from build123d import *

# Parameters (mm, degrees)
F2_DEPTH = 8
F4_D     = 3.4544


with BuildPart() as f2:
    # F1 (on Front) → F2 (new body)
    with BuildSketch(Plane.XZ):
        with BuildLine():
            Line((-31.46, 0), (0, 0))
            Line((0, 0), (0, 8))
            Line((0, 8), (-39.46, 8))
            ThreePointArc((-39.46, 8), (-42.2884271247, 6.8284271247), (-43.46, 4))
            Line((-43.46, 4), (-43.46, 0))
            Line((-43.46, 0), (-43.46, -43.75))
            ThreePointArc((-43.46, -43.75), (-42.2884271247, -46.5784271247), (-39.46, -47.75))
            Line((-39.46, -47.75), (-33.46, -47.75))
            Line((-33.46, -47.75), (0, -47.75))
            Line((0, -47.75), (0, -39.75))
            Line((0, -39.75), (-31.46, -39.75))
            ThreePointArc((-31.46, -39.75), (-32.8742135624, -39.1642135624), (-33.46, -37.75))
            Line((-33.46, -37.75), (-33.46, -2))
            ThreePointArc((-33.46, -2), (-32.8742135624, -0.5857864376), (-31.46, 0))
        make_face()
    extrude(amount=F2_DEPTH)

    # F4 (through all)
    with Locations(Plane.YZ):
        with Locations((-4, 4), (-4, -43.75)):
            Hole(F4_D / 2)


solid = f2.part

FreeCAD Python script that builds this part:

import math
import FreeCAD as App
import Part
import Sketcher

V = App.Vector
Q = App.Units.Quantity

doc = App.newDocument("Part")
body = doc.addObject("PartDesign::Body", "Body")

sketch1 = body.newObject("Sketcher::SketchObject", "Sketch")
sketch1.AttachmentSupport = (doc.getObject("XZ_Plane"), [""])
sketch1.MapMode = "FlatFace"
sketch1.addGeometry([
    Part.LineSegment(V(-31.46, 0, 0), V(0, 0, 0)),
    Part.LineSegment(V(0, 0, 0), V(0, 8, 0)),
    Part.LineSegment(V(0, 8, 0), V(-39.46, 8, 0)),
    Part.ArcOfCircle(Part.Circle(V(-39.46, 4, 0), V(0, 0, 1), 4), math.radians(90), math.radians(180)),
    Part.LineSegment(V(-43.46, 4, 0), V(-43.46, -43.75, 0)),
    Part.ArcOfCircle(Part.Circle(V(-39.46, -43.75, 0), V(0, 0, 1), 4), math.radians(180), math.radians(270)),
    Part.LineSegment(V(-39.46, -47.75, 0), V(0, -47.75, 0)),
    Part.LineSegment(V(0, -47.75, 0), V(0, -39.75, 0)),
    Part.LineSegment(V(0, -39.75, 0), V(-31.46, -39.75, 0)),
    Part.ArcOfCircle(Part.Circle(V(-31.46, -37.75, 0), V(0, 0, 1), 2), math.radians(180), math.radians(270)),
    Part.LineSegment(V(-33.46, -37.75, 0), V(-33.46, -2, 0)),
    Part.ArcOfCircle(Part.Circle(V(-31.46, -2, 0), V(0, 0, 1), 2), math.radians(90), math.radians(180)),
], False)
sketch1.addConstraint([
    Sketcher.Constraint("Coincident", 0, 2, 1, 1),
    Sketcher.Constraint("Coincident", 1, 2, 2, 1),
    Sketcher.Constraint("Tangent", 2, 2, 3, 1),
    Sketcher.Constraint("Tangent", 3, 2, 4, 1),
    Sketcher.Constraint("Tangent", 4, 2, 5, 1),
    Sketcher.Constraint("Tangent", 5, 2, 6, 1),
    Sketcher.Constraint("Coincident", 6, 2, 7, 1),
    Sketcher.Constraint("Coincident", 7, 2, 8, 1),
    Sketcher.Constraint("Tangent", 8, 2, 9, 2),
    Sketcher.Constraint("Tangent", 9, 1, 10, 1),
    Sketcher.Constraint("Tangent", 10, 2, 11, 2),
    Sketcher.Constraint("Tangent", 11, 1, 0, 1),
    Sketcher.Constraint("Horizontal", 0),
    Sketcher.Constraint("Vertical", 1),
    Sketcher.Constraint("Horizontal", 2),
    Sketcher.Constraint("Vertical", 4),
    Sketcher.Constraint("Horizontal", 6),
    Sketcher.Constraint("Vertical", 7),
    Sketcher.Constraint("Horizontal", 8),
    Sketcher.Constraint("Vertical", 10),
    Sketcher.Constraint("Coincident", 0, 2, -1, 1),
    Sketcher.Constraint("Equal", 3, 5),
    Sketcher.Constraint("Equal", 9, 11),
    Sketcher.Constraint("PointOnObject", 6, 2, -2),
    Sketcher.Constraint("Equal", 1, 7),
    Sketcher.Constraint("Radius", 3, Q("4 mm")),
    Sketcher.Constraint("Radius", 9, Q("2 mm")),
    Sketcher.Constraint("DistanceY", 1, 1, 1, 2, Q("8 mm")),
    Sketcher.Constraint("DistanceX", 5, 3, 9, 3, Q("8 mm")),
    Sketcher.Constraint("DistanceX", 0, 1, 0, 2, Q("31.46 mm")),
    Sketcher.Constraint("DistanceY", 4, 2, 4, 1, Q("47.75 mm")),
])
pad1 = body.newObject("PartDesign::Pad", "Pad")
pad1.Profile = sketch1
pad1.Length = 8

sketch2 = body.newObject("Sketcher::SketchObject", "Sketch001")
sketch2.AttachmentSupport = (doc.getObject("YZ_Plane"), [""])
sketch2.MapMode = "FlatFace"
sketch2.addGeometry([
    Part.Circle(V(-4, 4, 0), V(0, 0, 1), 1.7272),
    Part.Circle(V(-4, -43.75, 0), V(0, 0, 1), 1.7272),
], False)
sketch2.addConstraint([
    Sketcher.Constraint("Equal", 0, 1),
    Sketcher.Constraint("Vertical", 0, 3, 1, 3),
    Sketcher.Constraint("DistanceX", 0, 3, -1, 1, Q("4 mm")),
    Sketcher.Constraint("DistanceY", -1, 1, 0, 3, Q("4 mm")),
    Sketcher.Constraint("Diameter", 0, Q("3.4544 mm")),
    Sketcher.Constraint("DistanceY", 1, 3, -1, 1, Q("43.75 mm")),
])
doc.recompute()
hole = body.newObject("PartDesign::Hole", "Hole")
hole.Profile = sketch2
hole.ThreadType = "None"
hole.Diameter = 3.4544
hole.DepthType = "ThroughAll"

doc.recompute()
